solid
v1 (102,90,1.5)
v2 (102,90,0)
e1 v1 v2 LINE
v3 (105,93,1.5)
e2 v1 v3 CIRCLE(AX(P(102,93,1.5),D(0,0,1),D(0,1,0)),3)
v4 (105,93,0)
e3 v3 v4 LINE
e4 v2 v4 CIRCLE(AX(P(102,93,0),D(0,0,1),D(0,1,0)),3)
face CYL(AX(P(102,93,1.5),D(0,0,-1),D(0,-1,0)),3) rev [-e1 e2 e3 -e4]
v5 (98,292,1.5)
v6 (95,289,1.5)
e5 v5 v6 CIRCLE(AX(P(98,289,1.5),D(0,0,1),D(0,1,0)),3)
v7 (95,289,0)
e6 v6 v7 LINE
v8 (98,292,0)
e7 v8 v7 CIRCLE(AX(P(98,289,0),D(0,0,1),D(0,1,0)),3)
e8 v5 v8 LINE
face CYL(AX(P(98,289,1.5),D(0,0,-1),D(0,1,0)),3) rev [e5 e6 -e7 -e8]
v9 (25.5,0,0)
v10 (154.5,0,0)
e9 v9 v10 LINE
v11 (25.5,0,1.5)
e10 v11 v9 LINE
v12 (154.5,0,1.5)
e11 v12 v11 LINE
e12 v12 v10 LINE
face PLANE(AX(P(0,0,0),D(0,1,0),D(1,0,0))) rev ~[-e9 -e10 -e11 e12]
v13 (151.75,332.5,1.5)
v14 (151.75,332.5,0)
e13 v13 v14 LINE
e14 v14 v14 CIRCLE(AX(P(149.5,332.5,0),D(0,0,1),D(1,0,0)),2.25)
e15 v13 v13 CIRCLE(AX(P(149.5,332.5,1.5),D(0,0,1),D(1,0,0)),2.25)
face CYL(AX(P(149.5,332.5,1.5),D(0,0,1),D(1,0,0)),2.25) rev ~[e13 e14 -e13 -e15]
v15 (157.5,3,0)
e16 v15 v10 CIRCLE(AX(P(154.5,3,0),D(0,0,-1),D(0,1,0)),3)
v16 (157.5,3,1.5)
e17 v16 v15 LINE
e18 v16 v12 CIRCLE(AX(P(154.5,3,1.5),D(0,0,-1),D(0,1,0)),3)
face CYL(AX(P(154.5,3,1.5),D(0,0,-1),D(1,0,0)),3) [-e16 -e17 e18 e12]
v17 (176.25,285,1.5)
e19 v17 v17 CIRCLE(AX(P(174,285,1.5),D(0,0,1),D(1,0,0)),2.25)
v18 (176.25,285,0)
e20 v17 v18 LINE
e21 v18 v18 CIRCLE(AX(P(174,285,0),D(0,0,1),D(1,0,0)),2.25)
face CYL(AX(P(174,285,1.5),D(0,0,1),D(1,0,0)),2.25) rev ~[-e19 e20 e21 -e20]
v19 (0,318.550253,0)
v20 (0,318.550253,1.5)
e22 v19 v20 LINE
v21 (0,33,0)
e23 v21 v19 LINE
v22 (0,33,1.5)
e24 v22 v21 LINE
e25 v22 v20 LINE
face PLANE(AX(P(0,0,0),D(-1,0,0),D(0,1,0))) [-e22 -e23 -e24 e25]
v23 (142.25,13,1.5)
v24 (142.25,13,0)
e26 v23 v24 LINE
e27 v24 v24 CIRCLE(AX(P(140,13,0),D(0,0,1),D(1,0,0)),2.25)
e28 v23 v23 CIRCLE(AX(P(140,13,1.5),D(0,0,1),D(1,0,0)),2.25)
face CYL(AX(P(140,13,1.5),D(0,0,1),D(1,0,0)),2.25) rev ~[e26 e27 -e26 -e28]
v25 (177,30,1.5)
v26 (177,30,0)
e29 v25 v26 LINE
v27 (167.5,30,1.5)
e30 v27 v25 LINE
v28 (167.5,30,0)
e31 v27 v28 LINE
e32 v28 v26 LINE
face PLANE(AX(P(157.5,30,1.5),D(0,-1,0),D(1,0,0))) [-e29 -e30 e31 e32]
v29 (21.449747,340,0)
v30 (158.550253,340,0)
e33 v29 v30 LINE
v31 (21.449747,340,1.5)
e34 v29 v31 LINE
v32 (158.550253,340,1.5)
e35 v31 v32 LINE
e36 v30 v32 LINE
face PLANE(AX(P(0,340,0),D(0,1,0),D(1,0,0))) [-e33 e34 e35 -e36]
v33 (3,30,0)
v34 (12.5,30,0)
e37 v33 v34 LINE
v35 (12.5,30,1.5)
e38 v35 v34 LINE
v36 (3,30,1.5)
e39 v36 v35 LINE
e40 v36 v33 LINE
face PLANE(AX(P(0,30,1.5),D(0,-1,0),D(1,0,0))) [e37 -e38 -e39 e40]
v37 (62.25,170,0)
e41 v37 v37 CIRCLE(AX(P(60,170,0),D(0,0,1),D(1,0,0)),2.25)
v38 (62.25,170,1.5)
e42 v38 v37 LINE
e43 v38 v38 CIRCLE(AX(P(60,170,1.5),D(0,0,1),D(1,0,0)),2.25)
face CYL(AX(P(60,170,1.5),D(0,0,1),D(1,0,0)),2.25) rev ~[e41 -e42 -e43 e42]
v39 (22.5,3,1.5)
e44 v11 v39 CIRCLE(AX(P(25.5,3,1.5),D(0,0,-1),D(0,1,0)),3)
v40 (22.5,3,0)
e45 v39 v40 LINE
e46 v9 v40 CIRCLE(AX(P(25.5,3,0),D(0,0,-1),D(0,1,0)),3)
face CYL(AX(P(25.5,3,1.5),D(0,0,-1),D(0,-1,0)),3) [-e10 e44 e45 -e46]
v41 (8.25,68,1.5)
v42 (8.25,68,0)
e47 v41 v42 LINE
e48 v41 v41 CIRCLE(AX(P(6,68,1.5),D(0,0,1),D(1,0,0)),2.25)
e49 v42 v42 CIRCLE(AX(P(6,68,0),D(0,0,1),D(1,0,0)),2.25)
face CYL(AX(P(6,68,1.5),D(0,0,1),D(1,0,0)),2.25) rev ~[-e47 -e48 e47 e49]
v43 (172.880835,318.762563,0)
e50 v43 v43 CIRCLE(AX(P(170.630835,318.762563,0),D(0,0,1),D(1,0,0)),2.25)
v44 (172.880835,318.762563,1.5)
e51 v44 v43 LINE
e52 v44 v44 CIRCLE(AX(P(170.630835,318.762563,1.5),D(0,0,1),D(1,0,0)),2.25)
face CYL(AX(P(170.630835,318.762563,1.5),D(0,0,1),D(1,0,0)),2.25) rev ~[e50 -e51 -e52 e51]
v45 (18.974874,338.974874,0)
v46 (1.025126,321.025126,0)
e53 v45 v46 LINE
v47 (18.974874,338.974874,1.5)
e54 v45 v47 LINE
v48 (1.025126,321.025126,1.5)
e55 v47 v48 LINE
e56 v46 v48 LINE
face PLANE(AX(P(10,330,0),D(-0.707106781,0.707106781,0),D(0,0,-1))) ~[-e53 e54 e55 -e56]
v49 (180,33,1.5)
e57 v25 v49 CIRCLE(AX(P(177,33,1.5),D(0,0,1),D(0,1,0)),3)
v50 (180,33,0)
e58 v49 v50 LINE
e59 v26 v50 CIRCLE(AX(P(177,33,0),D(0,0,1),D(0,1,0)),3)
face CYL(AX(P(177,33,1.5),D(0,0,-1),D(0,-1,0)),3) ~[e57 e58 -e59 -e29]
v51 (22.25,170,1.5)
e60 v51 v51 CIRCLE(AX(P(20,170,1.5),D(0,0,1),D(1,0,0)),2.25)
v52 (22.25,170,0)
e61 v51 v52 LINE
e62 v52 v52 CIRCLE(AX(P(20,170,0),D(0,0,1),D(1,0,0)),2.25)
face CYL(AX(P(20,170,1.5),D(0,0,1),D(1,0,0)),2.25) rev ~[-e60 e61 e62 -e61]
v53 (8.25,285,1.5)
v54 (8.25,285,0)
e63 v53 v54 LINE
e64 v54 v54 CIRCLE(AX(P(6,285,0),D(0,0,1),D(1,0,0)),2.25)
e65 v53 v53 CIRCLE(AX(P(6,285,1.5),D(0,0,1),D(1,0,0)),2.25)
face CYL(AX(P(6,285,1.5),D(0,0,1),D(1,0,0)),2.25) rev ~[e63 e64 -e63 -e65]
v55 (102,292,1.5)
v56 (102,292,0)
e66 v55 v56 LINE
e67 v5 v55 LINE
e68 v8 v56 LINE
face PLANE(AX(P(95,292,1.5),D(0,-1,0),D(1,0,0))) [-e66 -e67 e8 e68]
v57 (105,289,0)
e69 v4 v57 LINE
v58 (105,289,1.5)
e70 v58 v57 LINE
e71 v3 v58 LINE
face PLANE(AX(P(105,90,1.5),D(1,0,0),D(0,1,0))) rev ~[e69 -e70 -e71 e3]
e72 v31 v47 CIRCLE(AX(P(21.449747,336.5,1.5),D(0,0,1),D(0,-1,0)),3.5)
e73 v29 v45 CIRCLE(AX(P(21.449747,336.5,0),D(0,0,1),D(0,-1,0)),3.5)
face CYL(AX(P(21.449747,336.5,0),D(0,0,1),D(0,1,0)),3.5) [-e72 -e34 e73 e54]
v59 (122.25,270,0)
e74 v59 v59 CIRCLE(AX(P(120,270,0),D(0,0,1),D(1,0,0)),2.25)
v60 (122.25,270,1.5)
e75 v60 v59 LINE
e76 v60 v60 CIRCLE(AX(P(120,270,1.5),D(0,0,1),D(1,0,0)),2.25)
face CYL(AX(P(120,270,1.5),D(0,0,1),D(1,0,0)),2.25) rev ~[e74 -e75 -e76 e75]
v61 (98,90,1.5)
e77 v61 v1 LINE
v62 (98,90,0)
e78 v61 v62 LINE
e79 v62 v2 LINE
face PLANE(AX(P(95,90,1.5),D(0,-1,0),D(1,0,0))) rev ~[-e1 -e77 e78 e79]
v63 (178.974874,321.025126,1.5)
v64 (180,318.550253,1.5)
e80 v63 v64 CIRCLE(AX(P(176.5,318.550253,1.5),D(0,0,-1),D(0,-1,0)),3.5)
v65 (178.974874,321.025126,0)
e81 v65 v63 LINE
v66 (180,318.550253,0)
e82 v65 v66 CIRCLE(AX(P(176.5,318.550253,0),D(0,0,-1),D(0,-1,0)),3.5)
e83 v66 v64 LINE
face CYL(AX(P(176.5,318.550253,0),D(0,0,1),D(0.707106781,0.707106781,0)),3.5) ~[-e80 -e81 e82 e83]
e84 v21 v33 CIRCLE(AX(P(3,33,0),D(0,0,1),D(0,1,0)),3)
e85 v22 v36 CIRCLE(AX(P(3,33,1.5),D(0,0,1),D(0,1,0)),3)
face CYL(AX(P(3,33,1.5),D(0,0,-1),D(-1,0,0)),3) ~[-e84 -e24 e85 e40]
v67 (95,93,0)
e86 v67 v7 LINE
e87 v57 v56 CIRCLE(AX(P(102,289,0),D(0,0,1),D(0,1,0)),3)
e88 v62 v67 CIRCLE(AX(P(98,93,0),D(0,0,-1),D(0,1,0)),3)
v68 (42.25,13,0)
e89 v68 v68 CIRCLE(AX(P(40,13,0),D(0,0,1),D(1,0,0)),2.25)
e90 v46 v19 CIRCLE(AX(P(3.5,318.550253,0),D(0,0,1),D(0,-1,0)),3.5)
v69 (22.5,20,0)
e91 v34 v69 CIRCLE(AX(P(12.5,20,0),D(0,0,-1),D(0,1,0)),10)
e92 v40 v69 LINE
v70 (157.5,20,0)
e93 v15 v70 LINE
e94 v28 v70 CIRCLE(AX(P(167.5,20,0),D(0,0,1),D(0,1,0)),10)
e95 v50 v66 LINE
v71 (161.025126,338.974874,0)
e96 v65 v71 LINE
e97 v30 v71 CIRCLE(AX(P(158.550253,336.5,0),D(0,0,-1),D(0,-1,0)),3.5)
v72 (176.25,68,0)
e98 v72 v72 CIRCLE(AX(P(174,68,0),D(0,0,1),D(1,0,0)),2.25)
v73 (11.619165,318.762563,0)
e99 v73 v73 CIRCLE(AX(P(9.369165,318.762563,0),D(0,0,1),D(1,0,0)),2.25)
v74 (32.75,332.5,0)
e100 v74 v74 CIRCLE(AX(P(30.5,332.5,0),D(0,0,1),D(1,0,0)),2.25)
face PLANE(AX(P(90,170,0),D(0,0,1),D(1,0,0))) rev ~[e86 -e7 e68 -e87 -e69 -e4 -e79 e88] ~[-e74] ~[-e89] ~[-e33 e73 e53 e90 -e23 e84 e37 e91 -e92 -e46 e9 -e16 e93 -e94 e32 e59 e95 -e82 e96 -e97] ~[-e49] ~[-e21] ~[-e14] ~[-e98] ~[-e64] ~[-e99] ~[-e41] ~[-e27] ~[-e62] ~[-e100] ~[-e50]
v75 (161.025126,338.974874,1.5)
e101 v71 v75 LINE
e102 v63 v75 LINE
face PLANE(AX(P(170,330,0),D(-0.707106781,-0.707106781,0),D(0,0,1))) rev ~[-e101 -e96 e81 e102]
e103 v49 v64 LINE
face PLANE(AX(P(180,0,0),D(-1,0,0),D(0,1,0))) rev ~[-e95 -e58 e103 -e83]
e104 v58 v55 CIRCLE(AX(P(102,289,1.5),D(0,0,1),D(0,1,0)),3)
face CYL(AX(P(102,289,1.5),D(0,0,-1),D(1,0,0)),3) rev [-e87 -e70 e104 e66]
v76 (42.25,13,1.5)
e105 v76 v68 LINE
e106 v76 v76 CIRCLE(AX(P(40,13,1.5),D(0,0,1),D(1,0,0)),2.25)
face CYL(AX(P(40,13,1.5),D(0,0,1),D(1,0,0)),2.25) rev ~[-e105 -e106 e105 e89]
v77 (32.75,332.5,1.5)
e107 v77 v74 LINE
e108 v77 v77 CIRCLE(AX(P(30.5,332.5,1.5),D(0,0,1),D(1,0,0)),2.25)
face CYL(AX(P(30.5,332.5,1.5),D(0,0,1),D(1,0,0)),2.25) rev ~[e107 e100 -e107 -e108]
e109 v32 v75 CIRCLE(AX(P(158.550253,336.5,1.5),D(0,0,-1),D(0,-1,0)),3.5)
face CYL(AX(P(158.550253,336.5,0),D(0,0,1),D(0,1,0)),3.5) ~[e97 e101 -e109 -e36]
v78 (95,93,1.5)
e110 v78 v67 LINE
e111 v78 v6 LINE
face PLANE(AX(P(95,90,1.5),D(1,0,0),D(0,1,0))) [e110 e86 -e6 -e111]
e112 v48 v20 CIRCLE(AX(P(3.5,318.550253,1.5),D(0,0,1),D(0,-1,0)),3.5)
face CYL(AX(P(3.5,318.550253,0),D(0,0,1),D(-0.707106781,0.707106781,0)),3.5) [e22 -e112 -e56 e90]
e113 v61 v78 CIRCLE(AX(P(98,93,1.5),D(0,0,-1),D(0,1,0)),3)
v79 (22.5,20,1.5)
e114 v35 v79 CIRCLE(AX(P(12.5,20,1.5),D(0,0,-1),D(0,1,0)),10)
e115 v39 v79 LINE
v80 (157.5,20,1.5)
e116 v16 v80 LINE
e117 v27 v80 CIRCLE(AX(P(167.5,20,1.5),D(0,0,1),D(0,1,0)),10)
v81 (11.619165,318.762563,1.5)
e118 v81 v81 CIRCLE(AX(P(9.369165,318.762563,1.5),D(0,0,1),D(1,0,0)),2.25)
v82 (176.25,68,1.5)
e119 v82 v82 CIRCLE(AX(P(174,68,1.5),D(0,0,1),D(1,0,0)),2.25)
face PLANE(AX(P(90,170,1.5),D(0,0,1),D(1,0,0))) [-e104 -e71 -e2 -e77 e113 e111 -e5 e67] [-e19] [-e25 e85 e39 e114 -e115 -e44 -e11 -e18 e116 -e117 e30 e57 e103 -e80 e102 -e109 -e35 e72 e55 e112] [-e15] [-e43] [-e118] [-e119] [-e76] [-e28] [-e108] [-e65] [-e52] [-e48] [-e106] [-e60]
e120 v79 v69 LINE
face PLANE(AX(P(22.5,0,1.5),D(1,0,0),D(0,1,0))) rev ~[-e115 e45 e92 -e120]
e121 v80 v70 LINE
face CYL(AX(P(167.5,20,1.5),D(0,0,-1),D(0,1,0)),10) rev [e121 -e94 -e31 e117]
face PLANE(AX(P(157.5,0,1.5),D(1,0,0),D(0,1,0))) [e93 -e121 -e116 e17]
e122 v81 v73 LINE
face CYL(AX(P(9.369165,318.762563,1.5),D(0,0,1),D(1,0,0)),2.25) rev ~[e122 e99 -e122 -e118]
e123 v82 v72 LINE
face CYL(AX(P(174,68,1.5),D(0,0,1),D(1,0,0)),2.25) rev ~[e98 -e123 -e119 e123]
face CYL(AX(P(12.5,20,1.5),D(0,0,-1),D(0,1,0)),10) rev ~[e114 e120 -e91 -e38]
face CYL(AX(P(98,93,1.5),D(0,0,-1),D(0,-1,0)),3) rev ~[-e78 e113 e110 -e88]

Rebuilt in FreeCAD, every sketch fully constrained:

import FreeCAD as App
import Part
import Sketcher


def edges_at(feature, points):
    """Names of the edges that pass closest to the given points."""
    edges = feature.Shape.Edges
    near = lambda p: min(range(len(edges)), key=lambda i: edges[i].distToShape(Part.Vertex(*p))[0])
    return sorted({f"Edge{near(p) + 1}" for p in points})

doc = App.newDocument("Part")
body = doc.addObject("PartDesign::Body", "Body")

# Sketch on XY plane
sketch1 = doc.addObject("Sketcher::SketchObject", "Sketch")
body.addObject(sketch1)
sketch1.AttachmentSupport = (doc.XY_Plane, [""])
sketch1.MapMode = "FlatFace"
sketch1.addGeometry([
    Part.LineSegment(App.Vector(0, 340, 0), App.Vector(0, 0, 0)),
    Part.LineSegment(App.Vector(0, 0, 0), App.Vector(180, 0, 0)),
    Part.LineSegment(App.Vector(180, 0, 0), App.Vector(180, 340, 0)),
    Part.LineSegment(App.Vector(180, 340, 0), App.Vector(0, 340, 0)),
], False)
sketch1.addConstraint([
    Sketcher.Constraint("Coincident", 0, 2, 1, 1),
    Sketcher.Constraint("Coincident", 1, 2, 2, 1),
    Sketcher.Constraint("Coincident", 2, 2, 3, 1),
    Sketcher.Constraint("Coincident", 3, 2, 0, 1),
    Sketcher.Constraint("Vertical", 0),
    Sketcher.Constraint("Horizontal", 1),
    Sketcher.Constraint("Vertical", 2),
    Sketcher.Constraint("Horizontal", 3),
    Sketcher.Constraint("Coincident", 0, 2, -1, 1),
    Sketcher.Constraint("DistanceX", 1, 1, 1, 2, 180.0),
    Sketcher.Constraint("DistanceY", 0, 2, 0, 1, 340.0),
])
pad1 = doc.addObject("PartDesign::Pad", "Pad")
body.addObject(pad1)
pad1.Profile = sketch1
pad1.Length = 1.5

# Sketch on XY plane
sketch2 = doc.addObject("Sketcher::SketchObject", "Sketch001")
body.addObject(sketch2)
sketch2.AttachmentSupport = (doc.XY_Plane, [""])
sketch2.MapMode = "FlatFace"
sketch2.AttachmentOffset = App.Placement(App.Vector(0, 0, 1.5), App.Rotation())
sketch2.addGeometry([
    Part.Circle(App.Vector(40, 13, 0), App.Vector(0, 0, 1), 2.25),
    Part.Circle(App.Vector(140, 13, 0), App.Vector(0, 0, 1), 2.25),
], False)
sketch2.addConstraint([
    Sketcher.Constraint("Equal", 0, 1),
    Sketcher.Constraint("Horizontal", 0, 3, 1, 3),
    Sketcher.Constraint("Diameter", 0, 4.5),
    Sketcher.Constraint("DistanceX", -1, 1, 0, 3, 40.0),
    Sketcher.Constraint("DistanceY", -1, 1, 0, 3, 13.0),
    Sketcher.Constraint("DistanceX", -1, 1, 1, 3, 140.0),
])
pocket1 = doc.addObject("PartDesign::Pocket", "Pocket")
body.addObject(pocket1)
pocket1.Profile = sketch2
pocket1.Type = "ThroughAll"
pocket1.Midplane = True

# Sketch on XY plane
sketch3 = doc.addObject("Sketcher::SketchObject", "Sketch002")
body.addObject(sketch3)
sketch3.AttachmentSupport = (doc.XY_Plane, [""])
sketch3.MapMode = "FlatFace"
sketch3.AttachmentOffset = App.Placement(App.Vector(0, 0, 1.5), App.Rotation())
sketch3.addGeometry([
    Part.LineSegment(App.Vector(0, 30, 0), App.Vector(0, 0, 0)),  # 0
    Part.LineSegment(App.Vector(0, 0, 0), App.Vector(22.5, 0, 0)),  # 1
    Part.LineSegment(App.Vector(22.5, 0, 0), App.Vector(22.5, 30, 0)),  # 2
    Part.LineSegment(App.Vector(22.5, 30, 0), App.Vector(0, 30, 0)),  # 3
    Part.LineSegment(App.Vector(157.5, 30, 0), App.Vector(157.5, 0, 0)),  # 4
    Part.LineSegment(App.Vector(157.5, 0, 0), App.Vector(180, 0, 0)),  # 5
    Part.LineSegment(App.Vector(180, 0, 0), App.Vector(180, 30, 0)),  # 6
    Part.LineSegment(App.Vector(180, 30, 0), App.Vector(157.5, 30, 0)),  # 7
], False)
sketch3.addConstraint([
    Sketcher.Constraint("Coincident", 0, 2, 1, 1),
    Sketcher.Constraint("Coincident", 1, 2, 2, 1),
    Sketcher.Constraint("Coincident", 2, 2, 3, 1),
    Sketcher.Constraint("Coincident", 3, 2, 0, 1),
    Sketcher.Constraint("Coincident", 4, 2, 5, 1),
    Sketcher.Constraint("Coincident", 5, 2, 6, 1),
    Sketcher.Constraint("Coincident", 6, 2, 7, 1),
    Sketcher.Constraint("Coincident", 7, 2, 4, 1),
    Sketcher.Constraint("Vertical", 0),
    Sketcher.Constraint("Horizontal", 1),
    Sketcher.Constraint("Vertical", 2),
    Sketcher.Constraint("Horizontal", 3),
    Sketcher.Constraint("Vertical", 4),
    Sketcher.Constraint("Horizontal", 5),
    Sketcher.Constraint("Vertical", 6),
    Sketcher.Constraint("Horizontal", 7),
    Sketcher.Constraint("Coincident", 0, 2, -1, 1),
    Sketcher.Constraint("PointOnObject", 4, 2, -1),
    Sketcher.Constraint("Horizontal", 3, 2, 6, 2),
    Sketcher.Constraint("Equal", 3, 5),
    Sketcher.Constraint("DistanceY", 0, 2, 0, 1, 30.0),
    Sketcher.Constraint("DistanceX", 1, 1, 1, 2, 22.5),
    Sketcher.Constraint("DistanceX", -1, 1, 5, 2, 180.0),
])
pocket2 = doc.addObject("PartDesign::Pocket", "Pocket001")
body.addObject(pocket2)
pocket2.Profile = sketch3
pocket2.Type = "ThroughAll"
pocket2.Midplane = True
doc.recompute()

fillet = doc.addObject("PartDesign::Fillet", "Fillet")
body.addObject(fillet)
fillet.Base = (pocket2, edges_at(pocket2, [(22.5, 30, 0.75), (157.5, 30, 0.75)]))
fillet.Radius = 10
doc.recompute()

fillet2 = doc.addObject("PartDesign::Fillet", "Fillet001")
body.addObject(fillet2)
fillet2.Base = (fillet, edges_at(fillet, [
    (0, 30, 0.75),
    (22.5, 0, 0.75),
    (180, 30, 0.75),
    (157.5, 0, 0.75),
]))
fillet2.Radius = 3

# Sketch on XY plane
sketch4 = doc.addObject("Sketcher::SketchObject", "Sketch003")
body.addObject(sketch4)
sketch4.AttachmentSupport = (doc.XY_Plane, [""])
sketch4.MapMode = "FlatFace"
sketch4.AttachmentOffset = App.Placement(App.Vector(0, 0, 1.5), App.Rotation())
sketch4.addGeometry([
    Part.LineSegment(App.Vector(95, 292, 0), App.Vector(95, 90, 0)),
    Part.LineSegment(App.Vector(95, 90, 0), App.Vector(105, 90, 0)),
    Part.LineSegment(App.Vector(105, 90, 0), App.Vector(105, 292, 0)),
    Part.LineSegment(App.Vector(105, 292, 0), App.Vector(95, 292, 0)),
], False)
sketch4.addConstraint([
    Sketcher.Constraint("Coincident", 0, 2, 1, 1),
    Sketcher.Constraint("Coincident", 1, 2, 2, 1),
    Sketcher.Constraint("Coincident", 2, 2, 3, 1),
    Sketcher.Constraint("Coincident", 3, 2, 0, 1),
    Sketcher.Constraint("Vertical", 0),
    Sketcher.Constraint("Horizontal", 1),
    Sketcher.Constraint("Vertical", 2),
    Sketcher.Constraint("Horizontal", 3),
    Sketcher.Constraint("DistanceX", 1, 1, 1, 2, 10.0),
    Sketcher.Constraint("DistanceY", 0, 2, 0, 1, 202.0),
    Sketcher.Constraint("DistanceX", -1, 1, 0, 2, 95.0),
    Sketcher.Constraint("DistanceY", -1, 1, 0, 2, 90.0),
])
pocket3 = doc.addObject("PartDesign::Pocket", "Pocket002")
body.addObject(pocket3)
pocket3.Profile = sketch4
pocket3.Type = "ThroughAll"
pocket3.Midplane = True
doc.recompute()

fillet3 = doc.addObject("PartDesign::Fillet", "Fillet002")
body.addObject(fillet3)
fillet3.Base = (pocket3, edges_at(pocket3, [
    (95, 90, 0.75),
    (95, 292, 0.75),
    (105, 292, 0.75),
    (105, 90, 0.75),
]))
fillet3.Radius = 3
doc.recompute()

chamfer = doc.addObject("PartDesign::Chamfer", "Chamfer")
body.addObject(chamfer)
chamfer.Base = (fillet3, edges_at(fillet3, [(180, 340, 0.75)]))
chamfer.Size = 20
doc.recompute()

chamfer2 = doc.addObject("PartDesign::Chamfer", "Chamfer001")
body.addObject(chamfer2)
chamfer2.Base = (chamfer, edges_at(chamfer, [(0, 340, 0.75)]))
chamfer2.Size = 20

# Sketch on XY plane
sketch5 = doc.addObject("Sketcher::SketchObject", "Sketch004")
body.addObject(sketch5)
sketch5.AttachmentSupport = (doc.XY_Plane, [""])
sketch5.MapMode = "FlatFace"
sketch5.AttachmentOffset = App.Placement(App.Vector(0, 0, 1.5), App.Rotation())
sketch5.addGeometry(Part.Circle(App.Vector(120, 270, 0), App.Vector(0, 0, 1), 2.25), False)
sketch5.addConstraint([
    Sketcher.Constraint("Diameter", 0, 4.5),
    Sketcher.Constraint("DistanceX", -1, 1, 0, 3, 120.0),
    Sketcher.Constraint("DistanceY", -1, 1, 0, 3, 270.0),
])
pocket4 = doc.addObject("PartDesign::Pocket", "Pocket003")
body.addObject(pocket4)
pocket4.Profile = sketch5
pocket4.Type = "ThroughAll"

# Sketch on XY plane
sketch6 = doc.addObject("Sketcher::SketchObject", "Sketch005")
body.addObject(sketch6)
sketch6.AttachmentSupport = (doc.XY_Plane, [""])
sketch6.MapMode = "FlatFace"
sketch6.AttachmentOffset = App.Placement(App.Vector(0, 0, 1.5), App.Rotation())
sketch6.addGeometry([
    Part.Circle(App.Vector(6, 285, 0), App.Vector(0, 0, 1), 2.25),  # 0
    Part.Circle(App.Vector(6, 68, 0), App.Vector(0, 0, 1), 2.25),  # 1
    Part.Circle(App.Vector(174, 68, 0), App.Vector(0, 0, 1), 2.25),  # 2
    Part.Circle(App.Vector(174, 285, 0), App.Vector(0, 0, 1), 2.25),  # 3
    Part.Circle(App.Vector(20, 170, 0), App.Vector(0, 0, 1), 2.25),  # 4
    Part.Circle(App.Vector(60, 170, 0), App.Vector(0, 0, 1), 2.25),  # 5
    Part.Circle(App.Vector(149.5, 332.5, 0), App.Vector(0, 0, 1), 2.25),  # 6
    Part.Circle(App.Vector(170.630835, 318.762563, 0), App.Vector(0, 0, 1), 2.25),  # 7
    Part.Circle(App.Vector(9.369165, 318.762563, 0), App.Vector(0, 0, 1), 2.25),  # 8
    Part.Circle(App.Vector(30.5, 332.5, 0), App.Vector(0, 0, 1), 2.25),  # 9
], False)
sketch6.addConstraint([
    Sketcher.Constraint("Equal", 0, 1),
    Sketcher.Constraint("Equal", 1, 2),
    Sketcher.Constraint("Equal", 2, 3),
    Sketcher.Constraint("Equal", 3, 4),
    Sketcher.Constraint("Equal", 4, 5),
    Sketcher.Constraint("Equal", 5, 6),
    Sketcher.Constraint("Equal", 6, 7),
    Sketcher.Constraint("Equal", 7, 8),
    Sketcher.Constraint("Equal", 8, 9),
    Sketcher.Constraint("Horizontal", 1, 3, 2, 3),
    Sketcher.Constraint("Horizontal", 0, 3, 3, 3),
    Sketcher.Constraint("Horizontal", 4, 3, 5, 3),
    Sketcher.Constraint("Horizontal", 7, 3, 8, 3),
    Sketcher.Constraint("Horizontal", 6, 3, 9, 3),
    Sketcher.Constraint("Vertical", 0, 3, 1, 3),
    Sketcher.Constraint("Vertical", 2, 3, 3, 3),
    Sketcher.Constraint("Diameter", 0, 4.5),
    Sketcher.Constraint("DistanceX", -1, 1, 0, 3, 6.0),
    Sketcher.Constraint("DistanceY", -1, 1, 0, 3, 285.0),
    Sketcher.Constraint("DistanceY", -1, 1, 1, 3, 68.0),
    Sketcher.Constraint("DistanceX", -1, 1, 2, 3, 174.0),
    Sketcher.Constraint("DistanceX", -1, 1, 4, 3, 20.0),
    Sketcher.Constraint("DistanceY", -1, 1, 4, 3, 170.0),
    Sketcher.Constraint("DistanceX", -1, 1, 5, 3, 60.0),
    Sketcher.Constraint("DistanceX", 9, 3, 6, 3, 119.0),
    Sketcher.Constraint("DistanceX", -1, 1, 6, 3, 149.5),
    Sketcher.Constraint("DistanceY", -1, 1, 6, 3, 332.5),
    Sketcher.Constraint("DistanceX", 8, 3, 7, 3, 161.26167),
    Sketcher.Constraint("DistanceX", -1, 1, 7, 3, 170.630835),
    Sketcher.Constraint("DistanceY", -1, 1, 7, 3, 318.762563),
])
pocket5 = doc.addObject("PartDesign::Pocket", "Pocket004")
body.addObject(pocket5)
pocket5.Profile = sketch6
pocket5.Type = "ThroughAll"
pocket5.Midplane = True
doc.recompute()

fillet4 = doc.addObject("PartDesign::Fillet", "Fillet003")
body.addObject(fillet4)
fillet4.Base = (pocket5, edges_at(pocket5, [
    (160, 340, 0.75),
    (180, 320, 0.75),
    (0, 320, 0.75),
    (20, 340, 0.75),
]))
fillet4.Radius = 3.5

doc.recompute()
